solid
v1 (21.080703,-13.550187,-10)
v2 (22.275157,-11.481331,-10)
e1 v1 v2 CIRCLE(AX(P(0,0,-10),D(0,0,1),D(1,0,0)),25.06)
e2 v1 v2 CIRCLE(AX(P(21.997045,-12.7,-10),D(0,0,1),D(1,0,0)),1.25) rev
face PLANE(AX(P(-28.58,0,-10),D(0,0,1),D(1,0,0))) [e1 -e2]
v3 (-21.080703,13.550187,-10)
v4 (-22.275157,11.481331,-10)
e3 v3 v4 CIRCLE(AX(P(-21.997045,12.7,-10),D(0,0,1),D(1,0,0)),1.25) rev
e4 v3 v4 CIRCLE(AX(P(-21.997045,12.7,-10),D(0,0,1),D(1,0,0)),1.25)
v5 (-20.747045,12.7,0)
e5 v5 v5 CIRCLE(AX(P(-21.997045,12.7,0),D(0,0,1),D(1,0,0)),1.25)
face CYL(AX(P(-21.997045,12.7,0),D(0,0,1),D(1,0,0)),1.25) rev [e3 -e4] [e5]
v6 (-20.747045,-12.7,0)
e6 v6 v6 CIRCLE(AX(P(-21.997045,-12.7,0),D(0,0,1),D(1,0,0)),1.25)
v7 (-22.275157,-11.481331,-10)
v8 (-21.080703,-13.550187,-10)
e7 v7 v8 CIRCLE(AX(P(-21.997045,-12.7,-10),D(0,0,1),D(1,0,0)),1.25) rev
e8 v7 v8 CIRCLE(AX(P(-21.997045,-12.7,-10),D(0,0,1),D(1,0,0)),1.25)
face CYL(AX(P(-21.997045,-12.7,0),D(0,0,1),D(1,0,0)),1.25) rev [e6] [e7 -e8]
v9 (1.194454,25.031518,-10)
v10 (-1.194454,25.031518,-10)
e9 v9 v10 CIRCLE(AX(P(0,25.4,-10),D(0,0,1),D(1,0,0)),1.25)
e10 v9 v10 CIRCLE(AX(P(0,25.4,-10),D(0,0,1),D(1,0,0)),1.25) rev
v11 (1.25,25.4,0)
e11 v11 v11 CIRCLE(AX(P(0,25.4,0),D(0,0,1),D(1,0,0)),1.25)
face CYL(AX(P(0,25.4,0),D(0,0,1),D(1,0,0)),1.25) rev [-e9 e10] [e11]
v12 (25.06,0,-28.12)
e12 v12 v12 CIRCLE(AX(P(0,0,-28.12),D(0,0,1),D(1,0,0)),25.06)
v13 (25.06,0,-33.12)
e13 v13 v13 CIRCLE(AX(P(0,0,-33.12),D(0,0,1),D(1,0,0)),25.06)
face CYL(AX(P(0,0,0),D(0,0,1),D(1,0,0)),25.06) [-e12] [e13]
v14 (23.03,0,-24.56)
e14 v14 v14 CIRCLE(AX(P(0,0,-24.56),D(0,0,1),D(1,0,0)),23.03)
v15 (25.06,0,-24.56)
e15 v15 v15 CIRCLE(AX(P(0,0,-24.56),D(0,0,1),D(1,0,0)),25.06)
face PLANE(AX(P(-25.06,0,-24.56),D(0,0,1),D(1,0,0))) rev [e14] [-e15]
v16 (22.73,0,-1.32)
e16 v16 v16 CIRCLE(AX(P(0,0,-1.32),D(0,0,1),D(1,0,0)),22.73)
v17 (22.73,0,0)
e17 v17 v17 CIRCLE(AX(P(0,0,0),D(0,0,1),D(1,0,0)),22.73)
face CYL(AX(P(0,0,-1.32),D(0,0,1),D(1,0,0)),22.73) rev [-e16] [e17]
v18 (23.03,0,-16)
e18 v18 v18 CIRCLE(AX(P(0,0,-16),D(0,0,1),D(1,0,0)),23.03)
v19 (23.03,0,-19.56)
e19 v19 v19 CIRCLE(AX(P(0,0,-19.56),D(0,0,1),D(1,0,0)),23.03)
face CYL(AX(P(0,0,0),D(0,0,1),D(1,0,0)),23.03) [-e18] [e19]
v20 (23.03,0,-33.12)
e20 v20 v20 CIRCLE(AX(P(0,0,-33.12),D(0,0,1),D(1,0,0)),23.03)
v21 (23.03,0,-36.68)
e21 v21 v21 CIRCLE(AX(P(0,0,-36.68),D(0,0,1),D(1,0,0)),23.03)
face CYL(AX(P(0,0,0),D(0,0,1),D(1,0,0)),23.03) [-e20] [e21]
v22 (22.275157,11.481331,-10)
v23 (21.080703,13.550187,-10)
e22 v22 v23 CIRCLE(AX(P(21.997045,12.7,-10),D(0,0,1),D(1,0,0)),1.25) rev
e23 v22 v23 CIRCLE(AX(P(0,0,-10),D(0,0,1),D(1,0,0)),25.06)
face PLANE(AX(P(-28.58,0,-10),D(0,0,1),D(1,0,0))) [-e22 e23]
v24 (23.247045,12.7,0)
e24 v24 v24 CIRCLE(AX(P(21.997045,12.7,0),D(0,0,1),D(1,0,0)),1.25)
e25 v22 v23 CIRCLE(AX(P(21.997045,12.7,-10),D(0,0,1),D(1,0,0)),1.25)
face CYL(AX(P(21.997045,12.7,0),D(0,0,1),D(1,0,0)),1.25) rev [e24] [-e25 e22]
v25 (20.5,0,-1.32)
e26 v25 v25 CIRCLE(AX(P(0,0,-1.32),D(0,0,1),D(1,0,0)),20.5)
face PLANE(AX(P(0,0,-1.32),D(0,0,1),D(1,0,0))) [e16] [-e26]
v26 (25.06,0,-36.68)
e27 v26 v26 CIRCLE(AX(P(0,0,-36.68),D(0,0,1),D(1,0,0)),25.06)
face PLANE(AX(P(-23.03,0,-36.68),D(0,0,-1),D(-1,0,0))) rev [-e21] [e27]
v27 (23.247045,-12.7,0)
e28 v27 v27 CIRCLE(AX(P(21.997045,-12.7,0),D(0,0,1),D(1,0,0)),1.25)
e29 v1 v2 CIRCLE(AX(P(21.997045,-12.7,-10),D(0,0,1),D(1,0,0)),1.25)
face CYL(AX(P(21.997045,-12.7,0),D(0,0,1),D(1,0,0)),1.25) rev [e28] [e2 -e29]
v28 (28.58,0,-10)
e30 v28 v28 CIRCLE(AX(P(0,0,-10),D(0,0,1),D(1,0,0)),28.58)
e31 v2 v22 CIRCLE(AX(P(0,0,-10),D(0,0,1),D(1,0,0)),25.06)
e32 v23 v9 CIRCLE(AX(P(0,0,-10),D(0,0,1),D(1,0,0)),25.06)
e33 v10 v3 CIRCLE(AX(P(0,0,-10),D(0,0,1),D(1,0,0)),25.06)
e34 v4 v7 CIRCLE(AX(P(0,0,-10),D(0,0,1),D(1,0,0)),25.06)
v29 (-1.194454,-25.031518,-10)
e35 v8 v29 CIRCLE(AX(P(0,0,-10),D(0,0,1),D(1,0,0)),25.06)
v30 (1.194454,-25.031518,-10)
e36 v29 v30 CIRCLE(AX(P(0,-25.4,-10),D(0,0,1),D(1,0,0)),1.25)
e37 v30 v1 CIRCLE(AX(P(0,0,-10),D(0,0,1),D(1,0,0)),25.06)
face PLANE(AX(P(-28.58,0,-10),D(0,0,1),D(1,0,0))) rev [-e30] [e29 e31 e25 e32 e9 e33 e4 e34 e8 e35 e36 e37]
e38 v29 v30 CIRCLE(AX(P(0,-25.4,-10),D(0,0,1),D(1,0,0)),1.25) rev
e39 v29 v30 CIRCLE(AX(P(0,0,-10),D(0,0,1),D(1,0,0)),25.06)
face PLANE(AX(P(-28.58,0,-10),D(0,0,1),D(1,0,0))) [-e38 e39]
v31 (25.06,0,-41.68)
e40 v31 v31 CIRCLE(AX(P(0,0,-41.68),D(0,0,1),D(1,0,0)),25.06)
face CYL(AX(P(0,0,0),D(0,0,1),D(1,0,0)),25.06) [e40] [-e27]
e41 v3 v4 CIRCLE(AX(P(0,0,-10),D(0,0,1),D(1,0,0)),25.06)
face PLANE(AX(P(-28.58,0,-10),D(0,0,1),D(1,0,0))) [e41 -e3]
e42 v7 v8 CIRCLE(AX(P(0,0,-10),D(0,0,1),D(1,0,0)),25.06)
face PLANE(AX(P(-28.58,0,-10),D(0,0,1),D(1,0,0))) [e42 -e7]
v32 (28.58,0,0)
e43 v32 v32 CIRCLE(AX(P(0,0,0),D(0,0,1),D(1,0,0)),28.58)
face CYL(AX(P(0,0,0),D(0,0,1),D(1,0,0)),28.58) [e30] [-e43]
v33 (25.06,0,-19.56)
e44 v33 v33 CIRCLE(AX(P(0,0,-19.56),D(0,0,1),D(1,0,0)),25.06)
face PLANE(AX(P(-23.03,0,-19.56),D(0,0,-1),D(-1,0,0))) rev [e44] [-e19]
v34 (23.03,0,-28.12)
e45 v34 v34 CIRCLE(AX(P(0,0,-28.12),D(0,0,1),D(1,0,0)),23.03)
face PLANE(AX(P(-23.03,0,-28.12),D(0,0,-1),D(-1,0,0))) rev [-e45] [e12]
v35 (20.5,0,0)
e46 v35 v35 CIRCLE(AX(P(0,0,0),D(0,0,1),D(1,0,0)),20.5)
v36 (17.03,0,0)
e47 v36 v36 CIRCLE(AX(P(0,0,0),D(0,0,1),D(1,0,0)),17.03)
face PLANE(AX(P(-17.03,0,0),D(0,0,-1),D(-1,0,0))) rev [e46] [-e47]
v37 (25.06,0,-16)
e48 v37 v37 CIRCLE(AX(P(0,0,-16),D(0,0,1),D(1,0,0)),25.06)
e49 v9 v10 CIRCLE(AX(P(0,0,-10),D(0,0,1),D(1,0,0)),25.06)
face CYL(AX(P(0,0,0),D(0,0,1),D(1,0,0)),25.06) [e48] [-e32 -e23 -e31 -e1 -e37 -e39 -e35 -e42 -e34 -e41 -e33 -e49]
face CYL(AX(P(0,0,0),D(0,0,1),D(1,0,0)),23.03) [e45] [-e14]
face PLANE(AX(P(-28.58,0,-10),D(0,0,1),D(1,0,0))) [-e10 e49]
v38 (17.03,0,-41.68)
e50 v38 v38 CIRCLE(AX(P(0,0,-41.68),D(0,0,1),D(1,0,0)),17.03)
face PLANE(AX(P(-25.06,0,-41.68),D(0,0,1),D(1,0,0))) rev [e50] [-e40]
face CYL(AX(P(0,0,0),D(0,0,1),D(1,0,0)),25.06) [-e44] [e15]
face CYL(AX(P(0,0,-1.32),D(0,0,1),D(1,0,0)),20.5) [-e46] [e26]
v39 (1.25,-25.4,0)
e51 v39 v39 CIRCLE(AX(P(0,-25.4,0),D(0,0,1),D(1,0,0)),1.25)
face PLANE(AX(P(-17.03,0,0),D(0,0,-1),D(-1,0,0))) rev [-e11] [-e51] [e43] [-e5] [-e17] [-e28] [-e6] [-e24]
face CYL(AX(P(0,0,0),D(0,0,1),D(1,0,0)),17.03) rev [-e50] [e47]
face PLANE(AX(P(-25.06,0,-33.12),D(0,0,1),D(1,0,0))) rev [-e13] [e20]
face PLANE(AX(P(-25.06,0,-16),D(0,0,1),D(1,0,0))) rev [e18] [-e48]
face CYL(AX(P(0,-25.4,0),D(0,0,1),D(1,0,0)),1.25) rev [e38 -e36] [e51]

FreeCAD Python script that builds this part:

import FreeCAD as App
import Part
import Sketcher

V = App.Vector
Q = App.Units.Quantity


def add_polygon(sketch, points):
    """Adds a closed chain of lines whose ends are joined by coincident constraints."""
    first, n = sketch.GeometryCount, len(points)
    for a, b in zip(points, points[1:] + points[:1]):
        sketch.addGeometry(Part.LineSegment(App.Vector(*a, 0), App.Vector(*b, 0)), False)
    for i in range(n):
        sketch.addConstraint(Sketcher.Constraint("Coincident", first + i, 2, first + (i + 1) % n, 1))

doc = App.newDocument("Part")
params = doc.addObject("Spreadsheet::Sheet", "Params")
for row, (alias, value) in enumerate([
    ("sketch1_height", "10 mm"),
    ("sketch1_height2", "5 mm"),
    ("sketch1_height3", "6 mm"),
    ("sketch1_width", "11.55 mm"),
    ("sketch1_width2", "8.03 mm"),
    ("revolution_angle", "360 deg"),
    ("sketch2_diameter", "2.5 mm"),
    ("hole_diameter", "2.5 mm"),
    ("hole_depth", "10 mm"),
    ("sketch3_diameter", "41 mm"),
    ("sketch3_diameter2", "45.46 mm"),
    ("pocket1_length", "1.32 mm"),
], start=1):
    params.set(f"A{row}", alias)
    params.set(f"B{row}", "=" + value)
    params.setAlias(f"B{row}", alias)

body = doc.addObject("PartDesign::Body", "Body")

sketch1 = doc.addObject("Sketcher::SketchObject", "Sketch")
body.addObject(sketch1)
sketch1.AttachmentSupport = (doc.XZ_Plane, [""])
sketch1.MapMode = "FlatFace"
add_polygon(sketch1, [(-28.58, -10), (-28.58, 0), (-17.03, 0), (-17.03, -41.68), (-25.06, -41.68), (-25.06, -36.68), (-23.03, -36.68), (-23.03, -33.12), (-25.06, -33.12), (-25.06, -28.12), (-23.03, -28.12), (-23.03, -24.56), (-25.06, -24.56), (-25.06, -19.56), (-23.03, -19.56), (-23.03, -16), (-25.06, -16), (-25.06, -10)])
sketch1.addConstraint([
    Sketcher.Constraint("Vertical", 0),
    Sketcher.Constraint("Horizontal", 1),
    Sketcher.Constraint("Vertical", 2),
    Sketcher.Constraint("Horizontal", 3),
    Sketcher.Constraint("Vertical", 4),
    Sketcher.Constraint("Horizontal", 5),
    Sketcher.Constraint("Vertical", 6),
    Sketcher.Constraint("Horizontal", 7),
    Sketcher.Constraint("Vertical", 8),
    Sketcher.Constraint("Horizontal", 9),
    Sketcher.Constraint("Vertical", 10),
    Sketcher.Constraint("Horizontal", 11),
    Sketcher.Constraint("Vertical", 12),
    Sketcher.Constraint("Horizontal", 13),
    Sketcher.Constraint("Vertical", 14),
    Sketcher.Constraint("Horizontal", 15),
    Sketcher.Constraint("Vertical", 16),
    Sketcher.Constraint("Horizontal", 17),
    Sketcher.Constraint("PointOnObject", 0, 2, -1),
    Sketcher.Constraint("Vertical", 4, 2, 7, 2),
    Sketcher.Constraint("Vertical", 6, 2, 9, 2),
    Sketcher.Constraint("Vertical", 8, 2, 11, 2),
    Sketcher.Constraint("Vertical", 10, 2, 13, 2),
    Sketcher.Constraint("Vertical", 12, 2, 15, 2),
    Sketcher.Constraint("Equal", 4, 8),
    Sketcher.Constraint("Equal", 6, 10),
    Sketcher.Constraint("Equal", 8, 12),
    Sketcher.Constraint("Equal", 10, 14),
    Sketcher.Constraint("DistanceY", 0, 1, 0, 2, Q("10 mm")),
    Sketcher.Constraint("DistanceY", 4, 1, 4, 2, Q("5 mm")),
    Sketcher.Constraint("DistanceY", 16, 1, 16, 2, Q("6 mm")),
    Sketcher.Constraint("DistanceX", 5, 2, 2, 2, Q("6 mm")),
    Sketcher.Constraint("DistanceX", 1, 1, 1, 2, Q("11.55 mm")),
    Sketcher.Constraint("DistanceX", 3, 2, 3, 1, Q("8.03 mm")),
    Sketcher.Constraint("DistanceY", 2, 2, 2, 1, Q("41.68 mm")),
    Sketcher.Constraint("DistanceX", 0, 2, -1, 1, Q("28.58 mm")),
])
sketch1.setExpression("Constraints[46]", "Params.sketch1_height")
sketch1.setExpression("Constraints[47]", "Params.sketch1_height2")
sketch1.setExpression("Constraints[48]", "Params.sketch1_height3")
sketch1.setExpression("Constraints[50]", "Params.sketch1_width")
sketch1.setExpression("Constraints[51]", "Params.sketch1_width2")
revolution = doc.addObject("PartDesign::Revolution", "Revolution")
body.addObject(revolution)
revolution.Profile = sketch1
revolution.ReferenceAxis = (sketch1, ["V_Axis"])
revolution.setExpression("Angle", "Params.revolution_angle")

sketch2 = doc.addObject("Sketcher::SketchObject", "Sketch001")
body.addObject(sketch2)
sketch2.AttachmentSupport = (doc.XY_Plane, [""])
sketch2.MapMode = "FlatFace"
sketch2.addGeometry([
    Part.Circle(V(0, 25.4, 0), V(0, 0, 1), 1.25),
    Part.Circle(V(21.997045, 12.7, 0), V(0, 0, 1), 1.25),
    Part.Circle(V(21.997045, -12.7, 0), V(0, 0, 1), 1.25),
    Part.Circle(V(0, -25.4, 0), V(0, 0, 1), 1.25),
    Part.Circle(V(-21.997045, -12.7, 0), V(0, 0, 1), 1.25),
    Part.Circle(V(-21.997045, 12.7, 0), V(0, 0, 1), 1.25),
], False)
sketch2.addConstraint([
    Sketcher.Constraint("Equal", 0, 1),
    Sketcher.Constraint("Equal", 1, 2),
    Sketcher.Constraint("Equal", 2, 3),
    Sketcher.Constraint("Equal", 3, 4),
    Sketcher.Constraint("Equal", 4, 5),
    Sketcher.Constraint("Symmetric", 0, 3, 3, 3, -1, 1),
    Sketcher.Constraint("Symmetric", 1, 3, 4, 3, -1, 1),
    Sketcher.Constraint("Symmetric", 2, 3, 5, 3, -1, 1),
    Sketcher.Constraint("Symmetric", 2, 3, 4, 3, -2),
    Sketcher.Constraint("PointOnObject", 0, 3, -2),
    Sketcher.Constraint("Diameter", 0, Q("2.5 mm")),
    Sketcher.Constraint("DistanceY", -1, 1, 0, 3, Q("25.4 mm")),
    Sketcher.Constraint("DistanceY", -1, 1, 1, 3, Q("12.7 mm")),
    Sketcher.Constraint("DistanceX", 4, 3, 2, 3, Q("43.994091 mm")),
])
sketch2.setExpression("Constraints[10]", "Params.sketch2_diameter")
doc.recompute()
hole = doc.addObject("PartDesign::Hole", "Hole")
body.addObject(hole)
hole.Profile = sketch2
hole.ThreadType = "None"
hole.setExpression("Diameter", "Params.hole_diameter")
hole.DepthType = "Dimension"
hole.setExpression("Depth", "Params.hole_depth")
hole.DrillPoint = "Flat"

sketch3 = doc.addObject("Sketcher::SketchObject", "Sketch002")
body.addObject(sketch3)
sketch3.AttachmentSupport = (doc.XY_Plane, [""])
sketch3.MapMode = "FlatFace"
sketch3.addGeometry([
    Part.Circle(V(0, 0, 0), V(0, 0, 1), 22.73),
    Part.Circle(V(0, 0, 0), V(0, 0, 1), 20.5),
], False)
sketch3.addConstraint([
    Sketcher.Constraint("Coincident", 0, 3, -1, 1),
    Sketcher.Constraint("Coincident", 1, 3, -1, 1),
    Sketcher.Constraint("Diameter", 1, Q("41 mm")),
    Sketcher.Constraint("Diameter", 0, Q("45.46 mm")),
])
sketch3.setExpression("Constraints[2]", "Params.sketch3_diameter")
sketch3.setExpression("Constraints[3]", "Params.sketch3_diameter2")
pocket1 = doc.addObject("PartDesign::Pocket", "Pocket")
body.addObject(pocket1)
pocket1.Profile = sketch3
pocket1.setExpression("Length", "Params.pocket1_length")

doc.recompute()
